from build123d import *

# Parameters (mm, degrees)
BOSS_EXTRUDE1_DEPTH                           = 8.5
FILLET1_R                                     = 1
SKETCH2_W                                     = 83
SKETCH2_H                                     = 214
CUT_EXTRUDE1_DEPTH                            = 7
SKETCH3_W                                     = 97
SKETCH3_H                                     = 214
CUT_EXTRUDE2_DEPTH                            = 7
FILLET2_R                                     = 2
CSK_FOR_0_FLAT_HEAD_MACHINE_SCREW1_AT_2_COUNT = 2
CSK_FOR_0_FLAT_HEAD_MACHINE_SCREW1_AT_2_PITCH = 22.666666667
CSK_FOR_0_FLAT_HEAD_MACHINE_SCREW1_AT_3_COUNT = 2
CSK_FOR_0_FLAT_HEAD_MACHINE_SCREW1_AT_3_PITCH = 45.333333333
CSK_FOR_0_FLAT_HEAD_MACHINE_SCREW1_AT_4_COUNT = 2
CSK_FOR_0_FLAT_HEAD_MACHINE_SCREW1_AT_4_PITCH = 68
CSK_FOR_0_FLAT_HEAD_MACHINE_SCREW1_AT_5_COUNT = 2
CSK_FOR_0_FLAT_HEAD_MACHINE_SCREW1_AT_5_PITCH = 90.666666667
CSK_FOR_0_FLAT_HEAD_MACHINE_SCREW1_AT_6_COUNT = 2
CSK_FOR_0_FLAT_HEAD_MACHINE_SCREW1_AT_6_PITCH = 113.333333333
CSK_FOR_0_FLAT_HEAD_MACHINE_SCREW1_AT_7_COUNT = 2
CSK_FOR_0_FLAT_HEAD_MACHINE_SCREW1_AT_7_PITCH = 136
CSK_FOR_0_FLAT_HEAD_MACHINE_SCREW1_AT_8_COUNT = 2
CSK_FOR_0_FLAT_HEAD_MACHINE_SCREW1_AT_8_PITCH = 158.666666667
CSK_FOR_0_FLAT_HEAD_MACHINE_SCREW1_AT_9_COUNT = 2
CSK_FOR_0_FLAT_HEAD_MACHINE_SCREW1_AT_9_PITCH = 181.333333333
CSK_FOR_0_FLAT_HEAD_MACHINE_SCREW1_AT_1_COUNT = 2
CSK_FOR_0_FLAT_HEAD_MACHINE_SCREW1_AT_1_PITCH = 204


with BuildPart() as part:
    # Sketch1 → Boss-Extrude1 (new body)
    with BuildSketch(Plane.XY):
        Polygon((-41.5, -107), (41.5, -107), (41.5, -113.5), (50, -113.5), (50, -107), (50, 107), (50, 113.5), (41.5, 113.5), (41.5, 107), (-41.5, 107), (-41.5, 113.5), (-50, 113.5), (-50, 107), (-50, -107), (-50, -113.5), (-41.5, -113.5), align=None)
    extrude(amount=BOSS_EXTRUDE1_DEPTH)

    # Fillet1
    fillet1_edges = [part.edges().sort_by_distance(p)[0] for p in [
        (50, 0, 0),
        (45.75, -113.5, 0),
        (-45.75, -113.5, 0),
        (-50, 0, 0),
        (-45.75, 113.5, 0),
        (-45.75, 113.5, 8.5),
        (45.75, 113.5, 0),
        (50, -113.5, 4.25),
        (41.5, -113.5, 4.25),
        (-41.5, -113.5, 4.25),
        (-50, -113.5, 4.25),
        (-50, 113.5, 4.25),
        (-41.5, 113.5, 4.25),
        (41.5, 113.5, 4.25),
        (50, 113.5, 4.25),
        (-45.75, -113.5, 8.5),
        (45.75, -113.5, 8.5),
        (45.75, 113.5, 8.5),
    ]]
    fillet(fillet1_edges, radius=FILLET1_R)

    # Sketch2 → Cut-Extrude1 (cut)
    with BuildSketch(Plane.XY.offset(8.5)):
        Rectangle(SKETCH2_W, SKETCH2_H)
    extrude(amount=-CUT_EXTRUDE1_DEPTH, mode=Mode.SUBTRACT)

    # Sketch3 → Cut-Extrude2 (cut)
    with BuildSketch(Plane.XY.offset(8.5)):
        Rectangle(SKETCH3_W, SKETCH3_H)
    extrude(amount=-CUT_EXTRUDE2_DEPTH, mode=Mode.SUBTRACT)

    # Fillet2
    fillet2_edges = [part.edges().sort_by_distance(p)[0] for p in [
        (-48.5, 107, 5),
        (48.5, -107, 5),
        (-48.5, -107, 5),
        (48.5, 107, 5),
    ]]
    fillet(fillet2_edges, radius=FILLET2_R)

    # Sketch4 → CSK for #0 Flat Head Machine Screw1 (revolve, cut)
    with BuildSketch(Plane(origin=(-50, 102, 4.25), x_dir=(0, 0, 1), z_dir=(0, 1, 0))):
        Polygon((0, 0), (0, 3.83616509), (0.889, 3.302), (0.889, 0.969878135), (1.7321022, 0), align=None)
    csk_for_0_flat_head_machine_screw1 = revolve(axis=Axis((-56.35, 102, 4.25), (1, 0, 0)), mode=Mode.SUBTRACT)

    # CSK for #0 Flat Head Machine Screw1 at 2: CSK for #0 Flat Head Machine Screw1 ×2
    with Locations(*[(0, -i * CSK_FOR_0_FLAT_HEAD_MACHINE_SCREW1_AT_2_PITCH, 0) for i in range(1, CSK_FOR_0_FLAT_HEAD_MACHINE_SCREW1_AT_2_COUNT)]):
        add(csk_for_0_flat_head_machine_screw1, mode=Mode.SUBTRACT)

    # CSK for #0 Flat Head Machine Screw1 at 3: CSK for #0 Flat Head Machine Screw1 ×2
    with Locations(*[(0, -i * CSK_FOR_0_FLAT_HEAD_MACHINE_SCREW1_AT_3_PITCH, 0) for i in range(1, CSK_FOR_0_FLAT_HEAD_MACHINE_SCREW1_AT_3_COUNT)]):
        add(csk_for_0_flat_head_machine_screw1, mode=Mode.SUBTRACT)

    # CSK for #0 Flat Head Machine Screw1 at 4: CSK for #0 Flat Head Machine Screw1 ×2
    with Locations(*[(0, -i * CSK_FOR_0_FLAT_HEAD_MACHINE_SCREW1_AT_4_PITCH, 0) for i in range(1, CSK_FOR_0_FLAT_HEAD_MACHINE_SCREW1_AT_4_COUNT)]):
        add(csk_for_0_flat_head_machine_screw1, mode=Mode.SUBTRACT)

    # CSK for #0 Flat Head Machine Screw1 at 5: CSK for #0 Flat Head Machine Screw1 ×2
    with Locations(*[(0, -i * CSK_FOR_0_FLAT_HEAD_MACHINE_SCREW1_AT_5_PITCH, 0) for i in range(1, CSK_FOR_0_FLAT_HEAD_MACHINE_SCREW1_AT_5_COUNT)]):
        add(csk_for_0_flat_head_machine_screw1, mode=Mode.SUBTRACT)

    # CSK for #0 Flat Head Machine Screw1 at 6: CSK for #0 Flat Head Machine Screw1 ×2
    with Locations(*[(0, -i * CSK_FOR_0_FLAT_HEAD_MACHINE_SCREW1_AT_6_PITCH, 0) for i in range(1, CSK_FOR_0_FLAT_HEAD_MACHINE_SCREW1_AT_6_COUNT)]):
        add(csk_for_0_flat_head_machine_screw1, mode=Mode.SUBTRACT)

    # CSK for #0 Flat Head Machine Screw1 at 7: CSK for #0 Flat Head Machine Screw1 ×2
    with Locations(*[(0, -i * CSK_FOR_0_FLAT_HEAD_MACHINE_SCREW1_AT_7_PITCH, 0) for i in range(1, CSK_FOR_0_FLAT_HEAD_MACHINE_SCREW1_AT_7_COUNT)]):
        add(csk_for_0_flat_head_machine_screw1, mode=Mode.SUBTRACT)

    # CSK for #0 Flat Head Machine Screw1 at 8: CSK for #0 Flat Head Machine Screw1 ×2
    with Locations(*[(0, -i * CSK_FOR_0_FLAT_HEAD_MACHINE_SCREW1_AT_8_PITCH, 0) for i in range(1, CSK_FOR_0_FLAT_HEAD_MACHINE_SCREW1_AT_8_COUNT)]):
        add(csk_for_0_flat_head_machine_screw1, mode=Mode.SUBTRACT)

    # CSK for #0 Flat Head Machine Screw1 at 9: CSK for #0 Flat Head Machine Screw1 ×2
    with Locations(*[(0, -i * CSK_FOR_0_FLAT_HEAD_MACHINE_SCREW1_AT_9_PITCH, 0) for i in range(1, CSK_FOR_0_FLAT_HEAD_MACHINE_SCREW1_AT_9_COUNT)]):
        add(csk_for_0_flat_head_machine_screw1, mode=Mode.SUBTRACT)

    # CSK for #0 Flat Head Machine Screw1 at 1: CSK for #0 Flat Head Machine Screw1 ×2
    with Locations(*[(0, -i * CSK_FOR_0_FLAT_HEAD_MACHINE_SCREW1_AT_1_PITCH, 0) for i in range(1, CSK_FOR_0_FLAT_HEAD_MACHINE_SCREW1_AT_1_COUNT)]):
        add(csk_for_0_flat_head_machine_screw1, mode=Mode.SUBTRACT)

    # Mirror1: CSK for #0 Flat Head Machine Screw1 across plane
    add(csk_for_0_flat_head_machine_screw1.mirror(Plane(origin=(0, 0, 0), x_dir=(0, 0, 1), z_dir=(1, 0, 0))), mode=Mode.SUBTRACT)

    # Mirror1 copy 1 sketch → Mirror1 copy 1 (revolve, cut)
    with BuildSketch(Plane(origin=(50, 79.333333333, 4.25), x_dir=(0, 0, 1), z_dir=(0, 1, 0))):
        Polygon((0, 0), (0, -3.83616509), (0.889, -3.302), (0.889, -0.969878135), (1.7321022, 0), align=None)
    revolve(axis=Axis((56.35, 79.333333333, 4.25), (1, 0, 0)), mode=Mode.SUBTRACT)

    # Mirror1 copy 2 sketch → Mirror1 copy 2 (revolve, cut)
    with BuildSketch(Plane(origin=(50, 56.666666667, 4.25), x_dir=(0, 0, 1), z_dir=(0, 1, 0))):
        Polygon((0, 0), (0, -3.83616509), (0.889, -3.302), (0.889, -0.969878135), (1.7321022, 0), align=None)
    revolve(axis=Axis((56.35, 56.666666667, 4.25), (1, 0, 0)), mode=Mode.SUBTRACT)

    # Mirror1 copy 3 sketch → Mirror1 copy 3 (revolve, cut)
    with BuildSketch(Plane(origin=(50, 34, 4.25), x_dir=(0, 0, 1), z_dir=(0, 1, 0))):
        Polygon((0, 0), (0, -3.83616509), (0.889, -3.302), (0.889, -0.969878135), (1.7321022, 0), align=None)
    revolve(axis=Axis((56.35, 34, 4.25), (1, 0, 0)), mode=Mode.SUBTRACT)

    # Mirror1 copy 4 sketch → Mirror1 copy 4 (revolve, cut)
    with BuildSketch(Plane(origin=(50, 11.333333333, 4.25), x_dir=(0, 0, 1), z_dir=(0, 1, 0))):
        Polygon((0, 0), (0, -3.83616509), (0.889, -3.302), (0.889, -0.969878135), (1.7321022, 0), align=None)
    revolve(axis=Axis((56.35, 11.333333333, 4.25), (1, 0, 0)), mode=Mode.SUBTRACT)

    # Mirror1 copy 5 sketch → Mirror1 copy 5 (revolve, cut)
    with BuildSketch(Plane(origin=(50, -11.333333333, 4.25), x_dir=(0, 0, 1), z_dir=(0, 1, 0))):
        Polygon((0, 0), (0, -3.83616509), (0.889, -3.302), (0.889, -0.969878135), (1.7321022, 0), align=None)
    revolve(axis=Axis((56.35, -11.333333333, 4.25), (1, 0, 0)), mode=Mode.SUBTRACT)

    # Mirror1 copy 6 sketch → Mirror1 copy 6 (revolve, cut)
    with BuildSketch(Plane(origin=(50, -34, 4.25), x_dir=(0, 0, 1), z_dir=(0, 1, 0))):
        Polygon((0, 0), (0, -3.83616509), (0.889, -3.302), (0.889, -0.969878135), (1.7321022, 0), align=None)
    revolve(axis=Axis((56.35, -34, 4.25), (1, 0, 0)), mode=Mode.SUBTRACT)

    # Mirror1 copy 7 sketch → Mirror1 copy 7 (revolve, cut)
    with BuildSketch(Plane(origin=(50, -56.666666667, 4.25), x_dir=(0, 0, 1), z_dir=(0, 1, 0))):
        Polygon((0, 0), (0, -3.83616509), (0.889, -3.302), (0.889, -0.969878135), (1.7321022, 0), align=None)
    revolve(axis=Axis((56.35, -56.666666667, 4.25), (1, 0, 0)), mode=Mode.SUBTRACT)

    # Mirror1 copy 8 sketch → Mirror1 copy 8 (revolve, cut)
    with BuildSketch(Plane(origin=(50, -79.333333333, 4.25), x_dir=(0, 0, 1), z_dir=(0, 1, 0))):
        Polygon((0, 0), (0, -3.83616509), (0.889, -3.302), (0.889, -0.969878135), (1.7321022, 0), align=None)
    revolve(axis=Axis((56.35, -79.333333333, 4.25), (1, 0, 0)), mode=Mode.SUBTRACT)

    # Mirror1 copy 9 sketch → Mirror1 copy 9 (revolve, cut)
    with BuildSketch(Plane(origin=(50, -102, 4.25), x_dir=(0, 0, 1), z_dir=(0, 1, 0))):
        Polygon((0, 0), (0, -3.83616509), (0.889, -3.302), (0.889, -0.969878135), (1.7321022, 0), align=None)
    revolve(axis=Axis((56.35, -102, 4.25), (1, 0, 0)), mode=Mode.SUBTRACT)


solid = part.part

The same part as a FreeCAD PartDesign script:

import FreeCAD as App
import Part
import Sketcher
Q = App.Units.Quantity


def edges_at(feature, points):
    """Names of the edges that pass closest to the given points."""
    edges = feature.Shape.Edges
    near = lambda p: min(range(len(edges)), key=lambda i: edges[i].distToShape(Part.Vertex(*p))[0])
    return sorted({f"Edge{near(p) + 1}" for p in points})


def add_polygon(sketch, points):
    """Adds a closed chain of lines whose ends are joined by coincident constraints."""
    first, n = sketch.GeometryCount, len(points)
    for a, b in zip(points, points[1:] + points[:1]):
        sketch.addGeometry(Part.LineSegment(App.Vector(*a, 0), App.Vector(*b, 0)), False)
    for i in range(n):
        sketch.addConstraint(Sketcher.Constraint("Coincident", first + i, 2, first + (i + 1) % n, 1))

doc = App.newDocument("Part")
body = doc.addObject("PartDesign::Body", "Body")

# Sketch on XY plane
sketch1 = doc.addObject("Sketcher::SketchObject", "Sketch")
body.addObject(sketch1)
sketch1.AttachmentSupport = (doc.XY_Plane, [""])
sketch1.MapMode = "FlatFace"
add_polygon(sketch1, [(-41.5, -107), (41.5, -107), (41.5, -113.5), (50, -113.5), (50, 113.5), (41.5, 113.5), (41.5, 107), (-41.5, 107), (-41.5, 113.5), (-50, 113.5), (-50, -113.5), (-41.5, -113.5)])  # lines 0-11
sketch1.addConstraint([
    Sketcher.Constraint("Horizontal", 0),
    Sketcher.Constraint("Vertical", 1),
    Sketcher.Constraint("Horizontal", 2),
    Sketcher.Constraint("Vertical", 3),
    Sketcher.Constraint("Horizontal", 4),
    Sketcher.Constraint("Vertical", 5),
    Sketcher.Constraint("Horizontal", 6),
    Sketcher.Constraint("Vertical", 7),
    Sketcher.Constraint("Horizontal", 8),
    Sketcher.Constraint("Vertical", 9),
    Sketcher.Constraint("Horizontal", 10),
    Sketcher.Constraint("Vertical", 11),
    Sketcher.Constraint("Symmetric", 0, 2, 6, 2, -1, 1),
    Sketcher.Constraint("Symmetric", 2, 2, 8, 2, -1, 1),
    Sketcher.Constraint("Symmetric", 4, 2, 10, 2, -1, 1),
    Sketcher.Constraint("Symmetric", 4, 2, 7, 2, -2),
    Sketcher.Constraint("DistanceX", 0, 1, 0, 2, 83.0),
    Sketcher.Constraint("DistanceY", 3, 1, 3, 2, 227.0),
    Sketcher.Constraint("DistanceX", 2, 1, 2, 2, 8.5),
    Sketcher.Constraint("DistanceY", 1, 2, 1, 1, 6.5),
])
pad1 = doc.addObject("PartDesign::Pad", "Pad")
body.addObject(pad1)
pad1.Profile = sketch1
pad1.Length = 8.5
doc.recompute()

fillet = doc.addObject("PartDesign::Fillet", "Fillet")
body.addObject(fillet)
fillet.Base = (pad1, edges_at(pad1, [
    (50, 0, 0),
    (45.75, -113.5, 0),
    (-45.75, -113.5, 0),
    (-50, 0, 0),
    (-45.75, 113.5, 0),
    (-45.75, 113.5, 8.5),
    (45.75, 113.5, 0),
    (50, -113.5, 4.25),
    (41.5, -113.5, 4.25),
    (-41.5, -113.5, 4.25),
    (-50, -113.5, 4.25),
    (-50, 113.5, 4.25),
    (-41.5, 113.5, 4.25),
    (41.5, 113.5, 4.25),
    (50, 113.5, 4.25),
    (-45.75, -113.5, 8.5),
    (45.75, -113.5, 8.5),
    (45.75, 113.5, 8.5),
]))
fillet.Radius = 1

# Sketch on XY plane
sketch2 = doc.addObject("Sketcher::SketchObject", "Sketch001")
body.addObject(sketch2)
sketch2.AttachmentSupport = (doc.XY_Plane, [""])
sketch2.MapMode = "FlatFace"
sketch2.AttachmentOffset = App.Placement(App.Vector(0, 0, 8.5), App.Rotation())
add_polygon(sketch2, [(-41.5, 107), (-41.5, -107), (41.5, -107), (41.5, 107)])  # lines 0-3
sketch2.addConstraint([
    Sketcher.Constraint("Vertical", 0),
    Sketcher.Constraint("Horizontal", 1),
    Sketcher.Constraint("Vertical", 2),
    Sketcher.Constraint("Horizontal", 3),
    Sketcher.Constraint("Symmetric", 0, 2, 2, 2, -1, 1),
    Sketcher.Constraint("DistanceX", 1, 1, 1, 2, 83.0),
    Sketcher.Constraint("DistanceY", 0, 2, 0, 1, 214.0),
])
pocket1 = doc.addObject("PartDesign::Pocket", "Pocket")
body.addObject(pocket1)
pocket1.Profile = sketch2
pocket1.Length = 7

# Sketch on XY plane
sketch3 = doc.addObject("Sketcher::SketchObject", "Sketch002")
body.addObject(sketch3)
sketch3.AttachmentSupport = (doc.XY_Plane, [""])
sketch3.MapMode = "FlatFace"
sketch3.AttachmentOffset = App.Placement(App.Vector(0, 0, 8.5), App.Rotation())
add_polygon(sketch3, [(-48.5, 107), (-48.5, -107), (48.5, -107), (48.5, 107)])  # lines 0-3
sketch3.addConstraint([
    Sketcher.Constraint("Vertical", 0),
    Sketcher.Constraint("Horizontal", 1),
    Sketcher.Constraint("Vertical", 2),
    Sketcher.Constraint("Horizontal", 3),
    Sketcher.Constraint("Symmetric", 0, 2, 2, 2, -1, 1),
    Sketcher.Constraint("DistanceX", 1, 1, 1, 2, 97.0),
    Sketcher.Constraint("DistanceY", 0, 2, 0, 1, 214.0),
])
pocket2 = doc.addObject("PartDesign::Pocket", "Pocket001")
body.addObject(pocket2)
pocket2.Profile = sketch3
pocket2.Length = 7
doc.recompute()

fillet2 = doc.addObject("PartDesign::Fillet", "Fillet001")
body.addObject(fillet2)
fillet2.Base = (pocket2, edges_at(pocket2, [
    (-48.5, 107, 5),
    (48.5, -107, 5),
    (-48.5, -107, 5),
    (48.5, 107, 5),
]))
fillet2.Radius = 2

# Sketch on XZ plane
sketch4 = doc.addObject("Sketcher::SketchObject", "Sketch003")
body.addObject(sketch4)
sketch4.AttachmentSupport = (doc.XZ_Plane, [""])
sketch4.MapMode = "FlatFace"
sketch4.AttachmentOffset = App.Placement(App.Vector(0, 0, -102), App.Rotation())
add_polygon(sketch4, [(-46.163835, 4.25), (-50, 4.25), (-50, 5.982102), (-49.030122, 5.139), (-46.698, 5.139)])  # lines 0-4
sketch4.addGeometry(Part.LineSegment(App.Vector(-50, 4.25, 0), App.Vector(-46.163835, 4.25, 0)), True)  # axis
sketch4.addConstraint([
    Sketcher.Constraint("Horizontal", 0),
    Sketcher.Constraint("Vertical", 1),
    Sketcher.Constraint("Horizontal", 3),
    Sketcher.Constraint("Horizontal", 5),
    Sketcher.Constraint("Coincident", 5, 1, 0, 2),
    Sketcher.Constraint("Equal", 0, 5),
    Sketcher.Constraint("Angle", 2, Q("-41 deg")),
    Sketcher.Constraint("Angle", 4, Q("-59 deg")),
    Sketcher.Constraint("DistanceX", 0, 2, -1, 1, 50.0),
    Sketcher.Constraint("DistanceY", -1, 1, 0, 2, 4.25),
    Sketcher.Constraint("DistanceY", -1, 1, 2, 2, 5.139),
    Sketcher.Constraint("DistanceX", 3, 2, -1, 1, 46.698),
    Sketcher.Constraint("Distance", 2, 1.285101),
])
groove = doc.addObject("PartDesign::Groove", "Groove")
body.addObject(groove)
groove.Profile = sketch4
groove.ReferenceAxis = (sketch4, ["Axis0"])
groove.Angle = 360
doc.recompute()

linearpattern = doc.addObject("PartDesign::LinearPattern", "LinearPattern")
body.addObject(linearpattern)
linearpattern.Originals = [groove]
linearpattern.Direction = (doc.Y_Axis, [""])
linearpattern.Mode = "offset"
linearpattern.Offset = 22.666667
linearpattern.Occurrences = 2
linearpattern.Reversed = True
body.Tip = linearpattern
doc.recompute()

linearpattern2 = doc.addObject("PartDesign::LinearPattern", "LinearPattern001")
body.addObject(linearpattern2)
linearpattern2.Originals = [groove]
linearpattern2.Direction = (doc.Y_Axis, [""])
linearpattern2.Mode = "offset"
linearpattern2.Offset = 45.333333
linearpattern2.Occurrences = 2
linearpattern2.Reversed = True
body.Tip = linearpattern2
doc.recompute()

linearpattern3 = doc.addObject("PartDesign::LinearPattern", "LinearPattern002")
body.addObject(linearpattern3)
linearpattern3.Originals = [groove]
linearpattern3.Direction = (doc.Y_Axis, [""])
linearpattern3.Mode = "offset"
linearpattern3.Offset = 68
linearpattern3.Occurrences = 2
linearpattern3.Reversed = True
body.Tip = linearpattern3
doc.recompute()

linearpattern4 = doc.addObject("PartDesign::LinearPattern", "LinearPattern003")
body.addObject(linearpattern4)
linearpattern4.Originals = [groove]
linearpattern4.Direction = (doc.Y_Axis, [""])
linearpattern4.Mode = "offset"
linearpattern4.Offset = 90.666667
linearpattern4.Occurrences = 2
linearpattern4.Reversed = True
body.Tip = linearpattern4
doc.recompute()

linearpattern5 = doc.addObject("PartDesign::LinearPattern", "LinearPattern004")
body.addObject(linearpattern5)
linearpattern5.Originals = [groove]
linearpattern5.Direction = (doc.Y_Axis, [""])
linearpattern5.Mode = "offset"
linearpattern5.Offset = 113.333333
linearpattern5.Occurrences = 2
linearpattern5.Reversed = True
body.Tip = linearpattern5
doc.recompute()

linearpattern6 = doc.addObject("PartDesign::LinearPattern", "LinearPattern005")
body.addObject(linearpattern6)
linearpattern6.Originals = [groove]
linearpattern6.Direction = (doc.Y_Axis, [""])
linearpattern6.Mode = "offset"
linearpattern6.Offset = 136
linearpattern6.Occurrences = 2
linearpattern6.Reversed = True
body.Tip = linearpattern6
doc.recompute()

linearpattern7 = doc.addObject("PartDesign::LinearPattern", "LinearPattern006")
body.addObject(linearpattern7)
linearpattern7.Originals = [groove]
linearpattern7.Direction = (doc.Y_Axis, [""])
linearpattern7.Mode = "offset"
linearpattern7.Offset = 158.666667
linearpattern7.Occurrences = 2
linearpattern7.Reversed = True
body.Tip = linearpattern7
doc.recompute()

linearpattern8 = doc.addObject("PartDesign::LinearPattern", "LinearPattern007")
body.addObject(linearpattern8)
linearpattern8.Originals = [groove]
linearpattern8.Direction = (doc.Y_Axis, [""])
linearpattern8.Mode = "offset"
linearpattern8.Offset = 181.333333
linearpattern8.Occurrences = 2
linearpattern8.Reversed = True
body.Tip = linearpattern8
doc.recompute()

linearpattern9 = doc.addObject("PartDesign::LinearPattern", "LinearPattern008")
body.addObject(linearpattern9)
linearpattern9.Originals = [groove]
linearpattern9.Direction = (doc.Y_Axis, [""])
linearpattern9.Mode = "offset"
linearpattern9.Offset = 204
linearpattern9.Occurrences = 2
linearpattern9.Reversed = True
body.Tip = linearpattern9
doc.recompute()

mirrored = doc.addObject("PartDesign::Mirrored", "Mirrored")
body.addObject(mirrored)
mirrored.Originals = [groove]
mirrored.MirrorPlane = (doc.YZ_Plane, [""])
body.Tip = mirrored

# Sketch on XZ plane
sketch5 = doc.addObject("Sketcher::SketchObject", "Sketch004")
body.addObject(sketch5)
sketch5.AttachmentSupport = (doc.XZ_Plane, [""])
sketch5.MapMode = "FlatFace"
sketch5.AttachmentOffset = App.Placement(App.Vector(0, 0, -79.333333), App.Rotation())
add_polygon(sketch5, [(50, 4.25), (46.163835, 4.25), (46.698, 5.139), (49.030122, 5.139), (50, 5.982102)])  # lines 0-4
sketch5.addGeometry(Part.LineSegment(App.Vector(46.163835, 4.25, 0), App.Vector(50, 4.25, 0)), True)  # axis
sketch5.addConstraint([
    Sketcher.Constraint("Horizontal", 0),
    Sketcher.Constraint("Horizontal", 2),
    Sketcher.Constraint("Vertical", 4),
    Sketcher.Constraint("Horizontal", 5),
    Sketcher.Constraint("Coincident", 5, 1, 0, 2),
    Sketcher.Constraint("Vertical", 3, 2, 5, 2),
    Sketcher.Constraint("Angle", 1, Q("59 deg")),
    Sketcher.Constraint("Angle", 3, Q("41 deg")),
    Sketcher.Constraint("DistanceX", -1, 1, 3, 2, 50.0),
    Sketcher.Constraint("DistanceY", -1, 1, 0, 2, 4.25),
    Sketcher.Constraint("DistanceX", -1, 1, 1, 2, 46.698),
    Sketcher.Constraint("DistanceY", -1, 1, 1, 2, 5.139),
    Sketcher.Constraint("Distance", 3, 1.285101),
])
groove2 = doc.addObject("PartDesign::Groove", "Groove001")
body.addObject(groove2)
groove2.Profile = sketch5
groove2.ReferenceAxis = (sketch5, ["Axis0"])
groove2.Angle = 360

# Sketch on XZ plane
sketch6 = doc.addObject("Sketcher::SketchObject", "Sketch005")
body.addObject(sketch6)
sketch6.AttachmentSupport = (doc.XZ_Plane, [""])
sketch6.MapMode = "FlatFace"
sketch6.AttachmentOffset = App.Placement(App.Vector(0, 0, -56.666667), App.Rotation())
add_polygon(sketch6, [(50, 4.25), (46.163835, 4.25), (46.698, 5.139), (49.030122, 5.139), (50, 5.982102)])  # lines 0-4
sketch6.addGeometry(Part.LineSegment(App.Vector(46.163835, 4.25, 0), App.Vector(50, 4.25, 0)), True)  # axis
sketch6.addConstraint([
    Sketcher.Constraint("Horizontal", 0),
    Sketcher.Constraint("Horizontal", 2),
    Sketcher.Constraint("Vertical", 4),
    Sketcher.Constraint("Horizontal", 5),
    Sketcher.Constraint("Coincident", 5, 1, 0, 2),
    Sketcher.Constraint("Vertical", 3, 2, 5, 2),
    Sketcher.Constraint("Angle", 1, Q("59 deg")),
    Sketcher.Constraint("Angle", 3, Q("41 deg")),
    Sketcher.Constraint("DistanceX", -1, 1, 3, 2, 50.0),
    Sketcher.Constraint("DistanceY", -1, 1, 0, 2, 4.25),
    Sketcher.Constraint("DistanceX", -1, 1, 1, 2, 46.698),
    Sketcher.Constraint("DistanceY", -1, 1, 1, 2, 5.139),
    Sketcher.Constraint("Distance", 3, 1.285101),
])
groove3 = doc.addObject("PartDesign::Groove", "Groove002")
body.addObject(groove3)
groove3.Profile = sketch6
groove3.ReferenceAxis = (sketch6, ["Axis0"])
groove3.Angle = 360

# Sketch on XZ plane
sketch7 = doc.addObject("Sketcher::SketchObject", "Sketch006")
body.addObject(sketch7)
sketch7.AttachmentSupport = (doc.XZ_Plane, [""])
sketch7.MapMode = "FlatFace"
sketch7.AttachmentOffset = App.Placement(App.Vector(0, 0, -34), App.Rotation())
add_polygon(sketch7, [(50, 4.25), (46.163835, 4.25), (46.698, 5.139), (49.030122, 5.139), (50, 5.982102)])  # lines 0-4
sketch7.addGeometry(Part.LineSegment(App.Vector(46.163835, 4.25, 0), App.Vector(50, 4.25, 0)), True)  # axis
sketch7.addConstraint([
    Sketcher.Constraint("Horizontal", 0),
    Sketcher.Constraint("Horizontal", 2),
    Sketcher.Constraint("Vertical", 4),
    Sketcher.Constraint("Horizontal", 5),
    Sketcher.Constraint("Coincident", 5, 1, 0, 2),
    Sketcher.Constraint("Vertical", 3, 2, 5, 2),
    Sketcher.Constraint("Angle", 1, Q("59 deg")),
    Sketcher.Constraint("Angle", 3, Q("41 deg")),
    Sketcher.Constraint("DistanceX", -1, 1, 3, 2, 50.0),
    Sketcher.Constraint("DistanceY", -1, 1, 0, 2, 4.25),
    Sketcher.Constraint("DistanceX", -1, 1, 1, 2, 46.698),
    Sketcher.Constraint("DistanceY", -1, 1, 1, 2, 5.139),
    Sketcher.Constraint("Distance", 3, 1.285101),
])
groove4 = doc.addObject("PartDesign::Groove", "Groove003")
body.addObject(groove4)
groove4.Profile = sketch7
groove4.ReferenceAxis = (sketch7, ["Axis0"])
groove4.Angle = 360

# Sketch on XZ plane
sketch8 = doc.addObject("Sketcher::SketchObject", "Sketch007")
body.addObject(sketch8)
sketch8.AttachmentSupport = (doc.XZ_Plane, [""])
sketch8.MapMode = "FlatFace"
sketch8.AttachmentOffset = App.Placement(App.Vector(0, 0, -11.333333), App.Rotation())
add_polygon(sketch8, [(50, 4.25), (46.163835, 4.25), (46.698, 5.139), (49.030122, 5.139), (50, 5.982102)])  # lines 0-4
sketch8.addGeometry(Part.LineSegment(App.Vector(46.163835, 4.25, 0), App.Vector(50, 4.25, 0)), True)  # axis
sketch8.addConstraint([
    Sketcher.Constraint("Horizontal", 0),
    Sketcher.Constraint("Horizontal", 2),
    Sketcher.Constraint("Vertical", 4),
    Sketcher.Constraint("Horizontal", 5),
    Sketcher.Constraint("Coincident", 5, 1, 0, 2),
    Sketcher.Constraint("Vertical", 3, 2, 5, 2),
    Sketcher.Constraint("Angle", 1, Q("59 deg")),
    Sketcher.Constraint("Angle", 3, Q("41 deg")),
    Sketcher.Constraint("DistanceX", -1, 1, 3, 2, 50.0),
    Sketcher.Constraint("DistanceY", -1, 1, 0, 2, 4.25),
    Sketcher.Constraint("DistanceX", -1, 1, 1, 2, 46.698),
    Sketcher.Constraint("DistanceY", -1, 1, 1, 2, 5.139),
    Sketcher.Constraint("Distance", 3, 1.285101),
])
groove5 = doc.addObject("PartDesign::Groove", "Groove004")
body.addObject(groove5)
groove5.Profile = sketch8
groove5.ReferenceAxis = (sketch8, ["Axis0"])
groove5.Angle = 360

# Sketch on XZ plane
sketch9 = doc.addObject("Sketcher::SketchObject", "Sketch008")
body.addObject(sketch9)
sketch9.AttachmentSupport = (doc.XZ_Plane, [""])
sketch9.MapMode = "FlatFace"
sketch9.AttachmentOffset = App.Placement(App.Vector(0, 0, 11.333333), App.Rotation())
add_polygon(sketch9, [(50, 4.25), (46.163835, 4.25), (46.698, 5.139), (49.030122, 5.139), (50, 5.982102)])  # lines 0-4
sketch9.addGeometry(Part.LineSegment(App.Vector(46.163835, 4.25, 0), App.Vector(50, 4.25, 0)), True)  # axis
sketch9.addConstraint([
    Sketcher.Constraint("Horizontal", 0),
    Sketcher.Constraint("Horizontal", 2),
    Sketcher.Constraint("Vertical", 4),
    Sketcher.Constraint("Horizontal", 5),
    Sketcher.Constraint("Coincident", 5, 1, 0, 2),
    Sketcher.Constraint("Vertical", 3, 2, 5, 2),
    Sketcher.Constraint("Angle", 1, Q("59 deg")),
    Sketcher.Constraint("Angle", 3, Q("41 deg")),
    Sketcher.Constraint("DistanceX", -1, 1, 3, 2, 50.0),
    Sketcher.Constraint("DistanceY", -1, 1, 0, 2, 4.25),
    Sketcher.Constraint("DistanceX", -1, 1, 1, 2, 46.698),
    Sketcher.Constraint("DistanceY", -1, 1, 1, 2, 5.139),
    Sketcher.Constraint("Distance", 3, 1.285101),
])
groove6 = doc.addObject("PartDesign::Groove", "Groove005")
body.addObject(groove6)
groove6.Profile = sketch9
groove6.ReferenceAxis = (sketch9, ["Axis0"])
groove6.Angle = 360

# Sketch on XZ plane
sketch10 = doc.addObject("Sketcher::SketchObject", "Sketch009")
body.addObject(sketch10)
sketch10.AttachmentSupport = (doc.XZ_Plane, [""])
sketch10.MapMode = "FlatFace"
sketch10.AttachmentOffset = App.Placement(App.Vector(0, 0, 34), App.Rotation())
add_polygon(sketch10, [(50, 4.25), (46.163835, 4.25), (46.698, 5.139), (49.030122, 5.139), (50, 5.982102)])  # lines 0-4
sketch10.addGeometry(Part.LineSegment(App.Vector(46.163835, 4.25, 0), App.Vector(50, 4.25, 0)), True)  # axis
sketch10.addConstraint([
    Sketcher.Constraint("Horizontal", 0),
    Sketcher.Constraint("Horizontal", 2),
    Sketcher.Constraint("Vertical", 4),
    Sketcher.Constraint("Horizontal", 5),
    Sketcher.Constraint("Coincident", 5, 1, 0, 2),
    Sketcher.Constraint("Vertical", 3, 2, 5, 2),
    Sketcher.Constraint("Angle", 1, Q("59 deg")),
    Sketcher.Constraint("Angle", 3, Q("41 deg")),
    Sketcher.Constraint("DistanceX", -1, 1, 3, 2, 50.0),
    Sketcher.Constraint("DistanceY", -1, 1, 0, 2, 4.25),
    Sketcher.Constraint("DistanceX", -1, 1, 1, 2, 46.698),
    Sketcher.Constraint("DistanceY", -1, 1, 1, 2, 5.139),
    Sketcher.Constraint("Distance", 3, 1.285101),
])
groove7 = doc.addObject("PartDesign::Groove", "Groove006")
body.addObject(groove7)
groove7.Profile = sketch10
groove7.ReferenceAxis = (sketch10, ["Axis0"])
groove7.Angle = 360

# Sketch on XZ plane
sketch11 = doc.addObject("Sketcher::SketchObject", "Sketch010")
body.addObject(sketch11)
sketch11.AttachmentSupport = (doc.XZ_Plane, [""])
sketch11.MapMode = "FlatFace"
sketch11.AttachmentOffset = App.Placement(App.Vector(0, 0, 56.666667), App.Rotation())
add_polygon(sketch11, [(50, 4.25), (46.163835, 4.25), (46.698, 5.139), (49.030122, 5.139), (50, 5.982102)])  # lines 0-4
sketch11.addGeometry(Part.LineSegment(App.Vector(46.163835, 4.25, 0), App.Vector(50, 4.25, 0)), True)  # axis
sketch11.addConstraint([
    Sketcher.Constraint("Horizontal", 0),
    Sketcher.Constraint("Horizontal", 2),
    Sketcher.Constraint("Vertical", 4),
    Sketcher.Constraint("Horizontal", 5),
    Sketcher.Constraint("Coincident", 5, 1, 0, 2),
    Sketcher.Constraint("Vertical", 3, 2, 5, 2),
    Sketcher.Constraint("Angle", 1, Q("59 deg")),
    Sketcher.Constraint("Angle", 3, Q("41 deg")),
    Sketcher.Constraint("DistanceX", -1, 1, 3, 2, 50.0),
    Sketcher.Constraint("DistanceY", -1, 1, 0, 2, 4.25),
    Sketcher.Constraint("DistanceX", -1, 1, 1, 2, 46.698),
    Sketcher.Constraint("DistanceY", -1, 1, 1, 2, 5.139),
    Sketcher.Constraint("Distance", 3, 1.285101),
])
groove8 = doc.addObject("PartDesign::Groove", "Groove007")
body.addObject(groove8)
groove8.Profile = sketch11
groove8.ReferenceAxis = (sketch11, ["Axis0"])
groove8.Angle = 360

# Sketch on XZ plane
sketch12 = doc.addObject("Sketcher::SketchObject", "Sketch011")
body.addObject(sketch12)
sketch12.AttachmentSupport = (doc.XZ_Plane, [""])
sketch12.MapMode = "FlatFace"
sketch12.AttachmentOffset = App.Placement(App.Vector(0, 0, 79.333333), App.Rotation())
add_polygon(sketch12, [(50, 4.25), (46.163835, 4.25), (46.698, 5.139), (49.030122, 5.139), (50, 5.982102)])  # lines 0-4
sketch12.addGeometry(Part.LineSegment(App.Vector(46.163835, 4.25, 0), App.Vector(50, 4.25, 0)), True)  # axis
sketch12.addConstraint([
    Sketcher.Constraint("Horizontal", 0),
    Sketcher.Constraint("Horizontal", 2),
    Sketcher.Constraint("Vertical", 4),
    Sketcher.Constraint("Horizontal", 5),
    Sketcher.Constraint("Coincident", 5, 1, 0, 2),
    Sketcher.Constraint("Vertical", 3, 2, 5, 2),
    Sketcher.Constraint("Angle", 1, Q("59 deg")),
    Sketcher.Constraint("Angle", 3, Q("41 deg")),
    Sketcher.Constraint("DistanceX", -1, 1, 3, 2, 50.0),
    Sketcher.Constraint("DistanceY", -1, 1, 0, 2, 4.25),
    Sketcher.Constraint("DistanceX", -1, 1, 1, 2, 46.698),
    Sketcher.Constraint("DistanceY", -1, 1, 1, 2, 5.139),
    Sketcher.Constraint("Distance", 3, 1.285101),
])
groove9 = doc.addObject("PartDesign::Groove", "Groove008")
body.addObject(groove9)
groove9.Profile = sketch12
groove9.ReferenceAxis = (sketch12, ["Axis0"])
groove9.Angle = 360

# Sketch on XZ plane
sketch13 = doc.addObject("Sketcher::SketchObject", "Sketch012")
body.addObject(sketch13)
sketch13.AttachmentSupport = (doc.XZ_Plane, [""])
sketch13.MapMode = "FlatFace"
sketch13.AttachmentOffset = App.Placement(App.Vector(0, 0, 102), App.Rotation())
add_polygon(sketch13, [(50, 4.25), (46.163835, 4.25), (46.698, 5.139), (49.030122, 5.139), (50, 5.982102)])  # lines 0-4
sketch13.addGeometry(Part.LineSegment(App.Vector(46.163835, 4.25, 0), App.Vector(50, 4.25, 0)), True)  # axis
sketch13.addConstraint([
    Sketcher.Constraint("Horizontal", 0),
    Sketcher.Constraint("Horizontal", 2),
    Sketcher.Constraint("Vertical", 4),
    Sketcher.Constraint("Horizontal", 5),
    Sketcher.Constraint("Coincident", 5, 1, 0, 2),
    Sketcher.Constraint("Vertical", 3, 2, 5, 2),
    Sketcher.Constraint("Angle", 1, Q("59 deg")),
    Sketcher.Constraint("Angle", 3, Q("41 deg")),
    Sketcher.Constraint("DistanceX", -1, 1, 3, 2, 50.0),
    Sketcher.Constraint("DistanceY", -1, 1, 0, 2, 4.25),
    Sketcher.Constraint("DistanceX", -1, 1, 1, 2, 46.698),
    Sketcher.Constraint("DistanceY", -1, 1, 1, 2, 5.139),
    Sketcher.Constraint("Distance", 3, 1.285101),
])
groove10 = doc.addObject("PartDesign::Groove", "Groove009")
body.addObject(groove10)
groove10.Profile = sketch13
groove10.ReferenceAxis = (sketch13, ["Axis0"])
groove10.Angle = 360

doc.recompute()
